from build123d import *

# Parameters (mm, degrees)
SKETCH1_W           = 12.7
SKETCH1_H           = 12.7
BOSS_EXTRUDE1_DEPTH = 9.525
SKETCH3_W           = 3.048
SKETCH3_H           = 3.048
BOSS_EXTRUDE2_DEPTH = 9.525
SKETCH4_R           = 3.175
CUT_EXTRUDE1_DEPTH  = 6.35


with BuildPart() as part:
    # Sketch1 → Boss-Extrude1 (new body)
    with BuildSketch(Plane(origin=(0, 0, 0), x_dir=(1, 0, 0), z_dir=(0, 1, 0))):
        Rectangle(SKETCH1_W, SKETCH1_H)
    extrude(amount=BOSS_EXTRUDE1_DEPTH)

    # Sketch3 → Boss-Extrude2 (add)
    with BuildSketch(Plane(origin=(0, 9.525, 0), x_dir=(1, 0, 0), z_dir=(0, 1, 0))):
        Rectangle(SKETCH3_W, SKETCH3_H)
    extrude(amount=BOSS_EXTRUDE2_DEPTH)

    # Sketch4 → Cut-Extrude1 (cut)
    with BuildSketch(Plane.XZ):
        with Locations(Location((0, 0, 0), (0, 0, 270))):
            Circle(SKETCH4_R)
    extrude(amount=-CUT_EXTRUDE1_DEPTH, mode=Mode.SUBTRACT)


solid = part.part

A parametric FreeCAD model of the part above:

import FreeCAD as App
import Part
import Sketcher

V = App.Vector
Q = App.Units.Quantity

doc = App.newDocument("Part")
body = doc.addObject("PartDesign::Body", "Body")

# Sketch on XZ plane
sketch1 = doc.addObject("Sketcher::SketchObject", "Sketch")
body.addObject(sketch1)
sketch1.AttachmentSupport = (doc.XZ_Plane, [""])
sketch1.MapMode = "FlatFace"
sketch1.addGeometry(Part.LineSegment(V(-6, -6, 0), V(-6, 6, 0)), False)
sketch1.addGeometry(Part.LineSegment(V(-6, 6, 0), V(6, 6, 0)), False)
sketch1.addGeometry(Part.LineSegment(V(6, 6, 0), V(6, -6, 0)), False)
sketch1.addGeometry(Part.LineSegment(V(6, -6, 0), V(-6, -6, 0)), False)
sketch1.addConstraint(Sketcher.Constraint("Coincident", 0, 2, 1, 1))
sketch1.addConstraint(Sketcher.Constraint("Coincident", 1, 2, 2, 1))
sketch1.addConstraint(Sketcher.Constraint("Coincident", 2, 2, 3, 1))
sketch1.addConstraint(Sketcher.Constraint("Coincident", 3, 2, 0, 1))
sketch1.addConstraint(Sketcher.Constraint("Vertical", 0))
sketch1.addConstraint(Sketcher.Constraint("Horizontal", 1))
sketch1.addConstraint(Sketcher.Constraint("Vertical", 2))
sketch1.addConstraint(Sketcher.Constraint("Horizontal", 3))
sketch1.addConstraint(Sketcher.Constraint("Symmetric", 0, 2, 2, 2, -1, 1))
sketch1.addConstraint(Sketcher.Constraint("Equal", 3, 0))
sketch1.addConstraint(Sketcher.Constraint("DistanceX", 1, 1, 1, 2, Q("0.5 in")))
pad1 = doc.addObject("PartDesign::Pad", "Pad")
body.addObject(pad1)
pad1.Profile = sketch1
pad1.Length = Q("0.375 in")
pad1.Reversed = True

# Sketch on XZ plane
sketch2 = doc.addObject("Sketcher::SketchObject", "Sketch001")
body.addObject(sketch2)
sketch2.AttachmentSupport = (doc.XZ_Plane, [""])
sketch2.MapMode = "FlatFace"
sketch2.AttachmentOffset = App.Placement(V(0, 0, -0.375 * 25.4), App.Rotation())
sketch2.addGeometry(Part.LineSegment(V(-1.5, -1.5, 0), V(-1.5, 1.5, 0)), False)
sketch2.addGeometry(Part.LineSegment(V(-1.5, 1.5, 0), V(1.5, 1.5, 0)), False)
sketch2.addGeometry(Part.LineSegment(V(1.5, 1.5, 0), V(1.5, -1.5, 0)), False)
sketch2.addGeometry(Part.LineSegment(V(1.5, -1.5, 0), V(-1.5, -1.5, 0)), False)
sketch2.addConstraint(Sketcher.Constraint("Coincident", 0, 2, 1, 1))
sketch2.addConstraint(Sketcher.Constraint("Coincident", 1, 2, 2, 1))
sketch2.addConstraint(Sketcher.Constraint("Coincident", 2, 2, 3, 1))
sketch2.addConstraint(Sketcher.Constraint("Coincident", 3, 2, 0, 1))
sketch2.addConstraint(Sketcher.Constraint("Vertical", 0))
sketch2.addConstraint(Sketcher.Constraint("Horizontal", 1))
sketch2.addConstraint(Sketcher.Constraint("Vertical", 2))
sketch2.addConstraint(Sketcher.Constraint("Horizontal", 3))
sketch2.addConstraint(Sketcher.Constraint("Symmetric", 0, 2, 2, 2, -1, 1))
sketch2.addConstraint(Sketcher.Constraint("Equal", 3, 0))
sketch2.addConstraint(Sketcher.Constraint("DistanceX", 1, 1, 1, 2, Q("0.12 in")))
pad2 = doc.addObject("PartDesign::Pad", "Pad001")
body.addObject(pad2)
pad2.Profile = sketch2
pad2.Length = Q("0.375 in")
pad2.Reversed = True

# Sketch on XZ plane
sketch3 = doc.addObject("Sketcher::SketchObject", "Sketch002")
body.addObject(sketch3)
sketch3.AttachmentSupport = (doc.XZ_Plane, [""])
sketch3.MapMode = "FlatFace"
sketch3.addGeometry(Part.Circle(V(0, 0, 0), V(0, 0, 1), 3.2), False)
sketch3.addConstraint(Sketcher.Constraint("Coincident", 0, 3, -1, 1))
sketch3.addConstraint(Sketcher.Constraint("Diameter", 0, Q("0.25 in")))
pocket1 = doc.addObject("PartDesign::Pocket", "Pocket")
body.addObject(pocket1)
pocket1.Profile = sketch3
pocket1.Length = Q("0.25 in")

doc.recompute()
